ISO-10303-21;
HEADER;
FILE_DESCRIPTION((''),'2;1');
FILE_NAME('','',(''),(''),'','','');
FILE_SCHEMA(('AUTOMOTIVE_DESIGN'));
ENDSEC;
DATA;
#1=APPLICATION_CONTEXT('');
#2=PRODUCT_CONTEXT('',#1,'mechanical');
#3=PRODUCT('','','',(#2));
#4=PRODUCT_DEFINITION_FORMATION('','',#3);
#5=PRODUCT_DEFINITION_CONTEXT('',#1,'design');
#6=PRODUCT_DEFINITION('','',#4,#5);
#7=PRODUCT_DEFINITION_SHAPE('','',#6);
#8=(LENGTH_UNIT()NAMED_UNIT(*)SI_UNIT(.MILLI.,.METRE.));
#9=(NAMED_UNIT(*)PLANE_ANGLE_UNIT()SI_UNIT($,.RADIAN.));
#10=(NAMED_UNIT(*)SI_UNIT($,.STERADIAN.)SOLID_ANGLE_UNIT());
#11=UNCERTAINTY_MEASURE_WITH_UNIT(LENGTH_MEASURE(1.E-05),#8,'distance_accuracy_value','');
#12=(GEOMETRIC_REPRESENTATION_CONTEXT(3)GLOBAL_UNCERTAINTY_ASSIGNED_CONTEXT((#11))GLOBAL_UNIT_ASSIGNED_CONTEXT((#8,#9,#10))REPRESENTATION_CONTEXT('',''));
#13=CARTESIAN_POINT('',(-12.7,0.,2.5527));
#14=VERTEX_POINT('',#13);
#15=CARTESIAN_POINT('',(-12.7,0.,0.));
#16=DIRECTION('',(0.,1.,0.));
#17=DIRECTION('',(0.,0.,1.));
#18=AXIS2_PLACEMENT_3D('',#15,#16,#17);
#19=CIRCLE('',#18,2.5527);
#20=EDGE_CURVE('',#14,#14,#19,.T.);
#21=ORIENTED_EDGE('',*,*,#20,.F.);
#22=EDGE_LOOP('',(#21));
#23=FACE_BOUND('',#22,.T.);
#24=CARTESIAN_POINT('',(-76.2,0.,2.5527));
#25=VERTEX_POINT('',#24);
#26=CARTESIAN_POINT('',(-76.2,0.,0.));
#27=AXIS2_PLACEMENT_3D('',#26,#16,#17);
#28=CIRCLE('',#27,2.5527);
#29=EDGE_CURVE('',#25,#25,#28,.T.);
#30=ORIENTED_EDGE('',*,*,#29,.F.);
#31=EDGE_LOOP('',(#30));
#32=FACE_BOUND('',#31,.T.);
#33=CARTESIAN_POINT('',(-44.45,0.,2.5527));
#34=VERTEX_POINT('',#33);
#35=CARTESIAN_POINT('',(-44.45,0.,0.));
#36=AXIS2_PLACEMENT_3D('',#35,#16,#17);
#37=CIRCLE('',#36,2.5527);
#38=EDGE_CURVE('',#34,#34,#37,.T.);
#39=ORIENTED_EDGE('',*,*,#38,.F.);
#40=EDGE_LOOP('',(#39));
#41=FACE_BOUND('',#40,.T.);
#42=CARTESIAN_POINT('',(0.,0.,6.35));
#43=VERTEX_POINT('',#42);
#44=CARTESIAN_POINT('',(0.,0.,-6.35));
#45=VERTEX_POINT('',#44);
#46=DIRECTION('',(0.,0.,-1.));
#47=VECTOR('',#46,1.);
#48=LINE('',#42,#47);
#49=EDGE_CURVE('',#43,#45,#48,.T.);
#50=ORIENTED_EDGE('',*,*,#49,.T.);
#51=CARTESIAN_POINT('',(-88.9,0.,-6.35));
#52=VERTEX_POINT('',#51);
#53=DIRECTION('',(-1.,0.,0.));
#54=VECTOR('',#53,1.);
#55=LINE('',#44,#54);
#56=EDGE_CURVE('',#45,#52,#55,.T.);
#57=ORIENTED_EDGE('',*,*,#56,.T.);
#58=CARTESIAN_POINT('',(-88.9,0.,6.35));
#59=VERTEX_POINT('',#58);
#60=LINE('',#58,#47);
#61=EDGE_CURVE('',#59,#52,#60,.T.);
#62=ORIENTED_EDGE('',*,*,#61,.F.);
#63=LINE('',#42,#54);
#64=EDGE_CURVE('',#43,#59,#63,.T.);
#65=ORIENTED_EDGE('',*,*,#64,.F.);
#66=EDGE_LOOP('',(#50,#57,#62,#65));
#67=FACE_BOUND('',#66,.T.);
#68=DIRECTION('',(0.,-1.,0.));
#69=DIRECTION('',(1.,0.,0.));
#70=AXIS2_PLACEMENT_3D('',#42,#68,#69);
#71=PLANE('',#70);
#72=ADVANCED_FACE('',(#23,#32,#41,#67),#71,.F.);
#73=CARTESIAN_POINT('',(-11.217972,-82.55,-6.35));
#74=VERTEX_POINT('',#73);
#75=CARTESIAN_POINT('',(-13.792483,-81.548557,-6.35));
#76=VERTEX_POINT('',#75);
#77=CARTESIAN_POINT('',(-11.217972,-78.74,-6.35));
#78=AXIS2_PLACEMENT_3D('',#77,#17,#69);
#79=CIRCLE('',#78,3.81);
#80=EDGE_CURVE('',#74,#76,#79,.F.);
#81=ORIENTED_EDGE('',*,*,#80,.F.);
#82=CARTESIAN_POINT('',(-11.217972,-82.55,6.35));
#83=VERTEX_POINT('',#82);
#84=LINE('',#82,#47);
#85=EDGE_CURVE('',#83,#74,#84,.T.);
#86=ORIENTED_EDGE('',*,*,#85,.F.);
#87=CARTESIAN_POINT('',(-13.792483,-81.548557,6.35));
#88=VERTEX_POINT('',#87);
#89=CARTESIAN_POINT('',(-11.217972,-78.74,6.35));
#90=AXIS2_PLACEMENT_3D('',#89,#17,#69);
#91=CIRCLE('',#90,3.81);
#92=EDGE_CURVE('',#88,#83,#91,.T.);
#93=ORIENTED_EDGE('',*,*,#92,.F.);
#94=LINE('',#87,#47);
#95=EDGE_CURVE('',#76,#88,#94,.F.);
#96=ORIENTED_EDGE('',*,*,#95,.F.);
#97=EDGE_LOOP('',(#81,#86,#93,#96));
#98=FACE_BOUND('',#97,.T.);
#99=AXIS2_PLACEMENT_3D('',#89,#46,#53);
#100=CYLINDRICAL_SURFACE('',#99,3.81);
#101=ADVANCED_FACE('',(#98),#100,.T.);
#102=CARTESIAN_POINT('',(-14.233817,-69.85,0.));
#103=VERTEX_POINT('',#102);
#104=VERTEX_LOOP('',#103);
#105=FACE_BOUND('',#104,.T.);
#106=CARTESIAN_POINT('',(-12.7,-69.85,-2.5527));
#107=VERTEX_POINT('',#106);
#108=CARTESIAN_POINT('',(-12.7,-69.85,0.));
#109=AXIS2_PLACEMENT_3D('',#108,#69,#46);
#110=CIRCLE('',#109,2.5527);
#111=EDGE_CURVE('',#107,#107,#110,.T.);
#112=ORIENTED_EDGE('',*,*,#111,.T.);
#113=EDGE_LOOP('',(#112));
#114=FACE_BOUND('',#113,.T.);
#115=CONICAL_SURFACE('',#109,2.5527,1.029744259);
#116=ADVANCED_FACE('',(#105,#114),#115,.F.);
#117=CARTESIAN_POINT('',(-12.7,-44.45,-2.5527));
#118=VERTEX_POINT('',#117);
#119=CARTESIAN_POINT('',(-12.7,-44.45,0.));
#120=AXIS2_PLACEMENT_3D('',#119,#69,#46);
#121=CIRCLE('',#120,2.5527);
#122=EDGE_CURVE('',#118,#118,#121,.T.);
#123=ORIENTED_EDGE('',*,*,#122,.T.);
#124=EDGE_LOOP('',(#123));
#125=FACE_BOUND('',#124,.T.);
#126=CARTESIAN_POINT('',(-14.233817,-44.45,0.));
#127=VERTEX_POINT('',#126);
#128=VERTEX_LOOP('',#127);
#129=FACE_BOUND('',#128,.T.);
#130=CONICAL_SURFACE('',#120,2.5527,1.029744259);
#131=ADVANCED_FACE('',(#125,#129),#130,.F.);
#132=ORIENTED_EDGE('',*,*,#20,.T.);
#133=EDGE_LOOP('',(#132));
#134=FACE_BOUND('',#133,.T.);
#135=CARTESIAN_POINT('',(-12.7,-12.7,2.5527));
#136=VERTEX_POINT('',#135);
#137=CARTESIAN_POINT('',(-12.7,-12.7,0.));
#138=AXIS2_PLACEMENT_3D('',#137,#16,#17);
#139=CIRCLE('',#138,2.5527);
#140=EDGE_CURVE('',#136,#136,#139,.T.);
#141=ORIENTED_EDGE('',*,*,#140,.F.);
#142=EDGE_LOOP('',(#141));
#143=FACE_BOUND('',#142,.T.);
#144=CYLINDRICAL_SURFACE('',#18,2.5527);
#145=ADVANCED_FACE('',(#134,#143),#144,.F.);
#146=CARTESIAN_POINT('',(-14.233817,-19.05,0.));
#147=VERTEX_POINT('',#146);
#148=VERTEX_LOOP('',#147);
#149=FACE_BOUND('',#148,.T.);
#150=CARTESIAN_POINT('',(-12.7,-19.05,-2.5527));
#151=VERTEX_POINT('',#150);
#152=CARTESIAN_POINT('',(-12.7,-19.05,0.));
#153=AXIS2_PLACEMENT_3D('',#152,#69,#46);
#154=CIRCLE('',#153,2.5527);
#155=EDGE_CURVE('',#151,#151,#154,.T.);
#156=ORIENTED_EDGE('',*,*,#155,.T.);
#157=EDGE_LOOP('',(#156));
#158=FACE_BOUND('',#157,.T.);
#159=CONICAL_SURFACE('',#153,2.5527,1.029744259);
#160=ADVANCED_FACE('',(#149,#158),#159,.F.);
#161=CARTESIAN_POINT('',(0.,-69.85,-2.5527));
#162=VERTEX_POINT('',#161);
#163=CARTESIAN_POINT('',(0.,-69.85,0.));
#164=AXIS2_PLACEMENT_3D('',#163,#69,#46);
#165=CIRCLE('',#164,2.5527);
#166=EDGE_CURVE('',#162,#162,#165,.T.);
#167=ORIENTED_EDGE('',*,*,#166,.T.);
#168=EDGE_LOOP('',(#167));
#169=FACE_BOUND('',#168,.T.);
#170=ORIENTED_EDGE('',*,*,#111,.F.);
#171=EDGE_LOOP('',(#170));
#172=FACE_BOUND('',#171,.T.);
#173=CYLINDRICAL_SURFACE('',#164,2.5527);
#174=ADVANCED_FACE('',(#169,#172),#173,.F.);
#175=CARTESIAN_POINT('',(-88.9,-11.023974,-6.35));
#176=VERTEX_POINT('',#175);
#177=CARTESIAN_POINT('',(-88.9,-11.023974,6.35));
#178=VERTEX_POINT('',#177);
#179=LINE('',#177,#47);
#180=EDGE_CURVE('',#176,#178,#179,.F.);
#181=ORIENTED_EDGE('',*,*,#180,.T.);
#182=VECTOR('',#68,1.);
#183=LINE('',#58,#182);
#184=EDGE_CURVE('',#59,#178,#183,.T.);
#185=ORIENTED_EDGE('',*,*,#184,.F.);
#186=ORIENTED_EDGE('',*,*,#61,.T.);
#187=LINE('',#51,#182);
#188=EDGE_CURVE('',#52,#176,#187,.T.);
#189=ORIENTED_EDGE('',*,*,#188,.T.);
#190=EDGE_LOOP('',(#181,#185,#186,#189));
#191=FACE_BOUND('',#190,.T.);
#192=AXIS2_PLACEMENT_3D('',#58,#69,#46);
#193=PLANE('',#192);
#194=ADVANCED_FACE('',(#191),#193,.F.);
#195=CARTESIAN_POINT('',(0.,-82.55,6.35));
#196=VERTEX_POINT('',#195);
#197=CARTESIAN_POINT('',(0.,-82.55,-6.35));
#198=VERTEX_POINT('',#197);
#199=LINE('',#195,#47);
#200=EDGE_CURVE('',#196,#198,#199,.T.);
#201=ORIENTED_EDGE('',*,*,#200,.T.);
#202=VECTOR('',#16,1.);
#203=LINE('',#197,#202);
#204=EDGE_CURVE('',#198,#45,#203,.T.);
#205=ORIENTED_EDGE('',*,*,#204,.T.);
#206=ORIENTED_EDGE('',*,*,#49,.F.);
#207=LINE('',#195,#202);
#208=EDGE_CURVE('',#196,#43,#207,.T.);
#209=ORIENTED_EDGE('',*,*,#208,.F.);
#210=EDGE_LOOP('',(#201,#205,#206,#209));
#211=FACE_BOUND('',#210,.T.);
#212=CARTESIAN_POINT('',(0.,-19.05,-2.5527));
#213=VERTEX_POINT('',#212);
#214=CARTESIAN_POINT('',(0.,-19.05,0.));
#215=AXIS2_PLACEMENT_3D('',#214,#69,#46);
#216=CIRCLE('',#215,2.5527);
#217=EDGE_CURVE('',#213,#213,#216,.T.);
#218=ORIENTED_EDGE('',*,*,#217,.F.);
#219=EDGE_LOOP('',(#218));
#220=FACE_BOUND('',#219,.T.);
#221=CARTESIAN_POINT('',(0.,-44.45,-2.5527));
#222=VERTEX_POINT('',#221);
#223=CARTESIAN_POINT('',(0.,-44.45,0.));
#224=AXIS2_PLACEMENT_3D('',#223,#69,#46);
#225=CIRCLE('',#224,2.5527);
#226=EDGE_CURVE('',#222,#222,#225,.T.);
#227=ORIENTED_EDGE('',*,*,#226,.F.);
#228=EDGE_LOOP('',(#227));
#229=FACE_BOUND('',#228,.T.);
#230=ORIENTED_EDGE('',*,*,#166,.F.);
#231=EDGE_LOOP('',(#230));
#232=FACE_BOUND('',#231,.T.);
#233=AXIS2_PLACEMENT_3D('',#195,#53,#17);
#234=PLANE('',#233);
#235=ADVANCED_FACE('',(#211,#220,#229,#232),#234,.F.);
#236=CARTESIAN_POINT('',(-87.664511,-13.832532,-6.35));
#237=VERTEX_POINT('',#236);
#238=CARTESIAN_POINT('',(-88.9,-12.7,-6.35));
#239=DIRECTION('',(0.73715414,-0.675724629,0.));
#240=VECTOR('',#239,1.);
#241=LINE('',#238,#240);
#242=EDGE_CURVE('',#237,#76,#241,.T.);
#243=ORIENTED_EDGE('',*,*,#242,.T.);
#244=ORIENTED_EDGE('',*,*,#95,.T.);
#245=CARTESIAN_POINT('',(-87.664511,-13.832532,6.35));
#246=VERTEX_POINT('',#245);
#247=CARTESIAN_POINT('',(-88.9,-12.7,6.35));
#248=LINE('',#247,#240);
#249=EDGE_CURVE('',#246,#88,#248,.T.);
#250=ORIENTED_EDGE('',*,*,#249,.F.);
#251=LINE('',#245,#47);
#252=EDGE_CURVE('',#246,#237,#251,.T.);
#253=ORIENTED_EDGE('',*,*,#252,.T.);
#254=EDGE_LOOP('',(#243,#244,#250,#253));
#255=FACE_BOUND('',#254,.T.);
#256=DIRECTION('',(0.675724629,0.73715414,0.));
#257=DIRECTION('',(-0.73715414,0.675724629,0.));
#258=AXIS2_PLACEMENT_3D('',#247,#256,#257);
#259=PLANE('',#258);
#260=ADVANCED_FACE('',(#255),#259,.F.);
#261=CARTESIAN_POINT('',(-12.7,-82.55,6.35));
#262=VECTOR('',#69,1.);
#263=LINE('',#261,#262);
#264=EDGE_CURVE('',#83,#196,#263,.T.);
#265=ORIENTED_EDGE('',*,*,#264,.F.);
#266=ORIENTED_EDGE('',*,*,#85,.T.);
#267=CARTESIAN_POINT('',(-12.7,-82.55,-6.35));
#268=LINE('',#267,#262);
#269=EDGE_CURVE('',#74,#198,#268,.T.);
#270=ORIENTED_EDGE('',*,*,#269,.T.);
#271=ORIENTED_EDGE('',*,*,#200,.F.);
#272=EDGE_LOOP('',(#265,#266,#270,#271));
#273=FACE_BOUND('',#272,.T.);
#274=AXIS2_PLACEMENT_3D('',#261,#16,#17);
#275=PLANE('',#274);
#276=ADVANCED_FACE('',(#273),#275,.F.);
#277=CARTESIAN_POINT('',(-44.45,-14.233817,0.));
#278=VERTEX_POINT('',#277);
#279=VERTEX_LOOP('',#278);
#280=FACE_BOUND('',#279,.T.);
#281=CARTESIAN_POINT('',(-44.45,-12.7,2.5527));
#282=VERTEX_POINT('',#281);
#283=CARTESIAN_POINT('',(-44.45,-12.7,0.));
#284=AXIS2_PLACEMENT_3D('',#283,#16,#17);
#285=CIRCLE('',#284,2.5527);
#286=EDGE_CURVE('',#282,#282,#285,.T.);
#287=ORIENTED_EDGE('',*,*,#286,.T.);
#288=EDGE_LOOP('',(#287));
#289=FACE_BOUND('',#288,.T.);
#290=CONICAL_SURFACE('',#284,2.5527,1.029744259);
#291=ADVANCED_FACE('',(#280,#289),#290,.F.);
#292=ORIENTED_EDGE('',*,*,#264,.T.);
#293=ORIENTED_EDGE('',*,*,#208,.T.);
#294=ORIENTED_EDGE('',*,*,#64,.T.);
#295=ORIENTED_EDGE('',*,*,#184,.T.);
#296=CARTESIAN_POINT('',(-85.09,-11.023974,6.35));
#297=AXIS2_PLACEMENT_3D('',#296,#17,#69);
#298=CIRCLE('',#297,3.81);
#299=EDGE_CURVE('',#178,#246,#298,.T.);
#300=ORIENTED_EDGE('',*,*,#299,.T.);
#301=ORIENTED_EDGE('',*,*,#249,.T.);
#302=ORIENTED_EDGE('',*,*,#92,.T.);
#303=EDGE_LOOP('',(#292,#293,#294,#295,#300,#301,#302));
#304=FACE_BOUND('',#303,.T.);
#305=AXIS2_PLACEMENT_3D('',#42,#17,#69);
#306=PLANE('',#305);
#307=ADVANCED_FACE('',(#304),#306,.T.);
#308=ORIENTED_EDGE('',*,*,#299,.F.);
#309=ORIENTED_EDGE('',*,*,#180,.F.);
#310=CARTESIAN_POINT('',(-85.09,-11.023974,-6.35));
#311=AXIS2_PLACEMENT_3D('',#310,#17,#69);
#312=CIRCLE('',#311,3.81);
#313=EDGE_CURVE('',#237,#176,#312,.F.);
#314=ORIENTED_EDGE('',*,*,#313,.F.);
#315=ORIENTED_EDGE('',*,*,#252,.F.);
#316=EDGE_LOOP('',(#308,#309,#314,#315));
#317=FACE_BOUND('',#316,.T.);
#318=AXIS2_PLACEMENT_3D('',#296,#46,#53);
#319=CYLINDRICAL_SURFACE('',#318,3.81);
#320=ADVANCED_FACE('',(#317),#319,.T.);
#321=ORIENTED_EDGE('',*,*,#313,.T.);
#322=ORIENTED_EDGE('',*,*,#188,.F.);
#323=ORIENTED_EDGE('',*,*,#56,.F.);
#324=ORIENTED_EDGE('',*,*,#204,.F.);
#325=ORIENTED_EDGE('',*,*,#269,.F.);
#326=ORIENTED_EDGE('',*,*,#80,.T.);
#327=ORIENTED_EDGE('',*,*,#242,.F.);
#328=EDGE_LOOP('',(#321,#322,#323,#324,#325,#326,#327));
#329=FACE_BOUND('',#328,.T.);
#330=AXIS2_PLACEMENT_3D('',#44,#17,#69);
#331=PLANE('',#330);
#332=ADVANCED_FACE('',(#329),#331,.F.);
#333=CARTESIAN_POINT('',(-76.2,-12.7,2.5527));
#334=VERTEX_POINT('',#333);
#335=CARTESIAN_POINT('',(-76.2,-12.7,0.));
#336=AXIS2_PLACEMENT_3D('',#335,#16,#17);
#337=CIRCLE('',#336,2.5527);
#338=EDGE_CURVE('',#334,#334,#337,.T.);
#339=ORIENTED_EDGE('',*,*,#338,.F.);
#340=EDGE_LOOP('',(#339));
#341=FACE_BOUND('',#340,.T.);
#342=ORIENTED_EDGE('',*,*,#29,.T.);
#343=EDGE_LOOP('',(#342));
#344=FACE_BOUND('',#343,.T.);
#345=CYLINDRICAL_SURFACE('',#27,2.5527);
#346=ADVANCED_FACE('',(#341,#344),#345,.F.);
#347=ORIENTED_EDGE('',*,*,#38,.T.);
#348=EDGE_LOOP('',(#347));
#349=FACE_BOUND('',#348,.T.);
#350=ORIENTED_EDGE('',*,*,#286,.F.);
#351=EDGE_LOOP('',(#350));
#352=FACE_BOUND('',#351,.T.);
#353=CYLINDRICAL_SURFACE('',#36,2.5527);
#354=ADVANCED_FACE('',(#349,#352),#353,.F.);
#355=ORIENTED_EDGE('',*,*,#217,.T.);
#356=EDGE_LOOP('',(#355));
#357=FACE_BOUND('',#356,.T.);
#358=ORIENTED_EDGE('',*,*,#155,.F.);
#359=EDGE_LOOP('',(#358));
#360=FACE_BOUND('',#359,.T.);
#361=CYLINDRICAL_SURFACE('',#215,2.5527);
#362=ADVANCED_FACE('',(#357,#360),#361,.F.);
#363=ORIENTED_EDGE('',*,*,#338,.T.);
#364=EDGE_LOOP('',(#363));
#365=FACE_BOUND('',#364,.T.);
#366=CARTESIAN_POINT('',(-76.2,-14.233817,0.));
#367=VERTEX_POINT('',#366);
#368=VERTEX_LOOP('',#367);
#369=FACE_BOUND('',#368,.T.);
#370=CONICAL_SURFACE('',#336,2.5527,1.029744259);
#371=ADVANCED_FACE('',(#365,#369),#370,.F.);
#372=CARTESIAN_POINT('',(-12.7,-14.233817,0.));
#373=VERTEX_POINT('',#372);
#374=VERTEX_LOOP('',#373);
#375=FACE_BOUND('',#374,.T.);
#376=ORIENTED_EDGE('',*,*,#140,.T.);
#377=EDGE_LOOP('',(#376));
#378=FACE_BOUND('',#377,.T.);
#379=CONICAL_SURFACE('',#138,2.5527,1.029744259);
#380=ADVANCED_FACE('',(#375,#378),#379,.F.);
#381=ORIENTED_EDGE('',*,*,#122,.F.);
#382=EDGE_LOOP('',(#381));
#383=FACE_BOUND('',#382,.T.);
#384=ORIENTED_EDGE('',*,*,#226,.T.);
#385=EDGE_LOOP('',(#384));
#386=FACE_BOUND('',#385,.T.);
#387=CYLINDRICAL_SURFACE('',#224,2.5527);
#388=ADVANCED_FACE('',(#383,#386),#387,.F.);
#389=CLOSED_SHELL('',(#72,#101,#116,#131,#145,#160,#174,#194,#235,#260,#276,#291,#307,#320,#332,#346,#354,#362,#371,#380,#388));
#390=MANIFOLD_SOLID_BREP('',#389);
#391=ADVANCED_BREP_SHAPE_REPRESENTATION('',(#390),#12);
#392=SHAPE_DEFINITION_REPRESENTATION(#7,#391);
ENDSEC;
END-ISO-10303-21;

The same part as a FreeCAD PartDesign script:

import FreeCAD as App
import Part
import Sketcher
from FreeCAD import Vector
Q = App.Units.Quantity


def edges_at(feature, points):
    """Names of the edges that pass closest to the given points."""
    edges = feature.Shape.Edges
    near = lambda p: min(range(len(edges)), key=lambda i: edges[i].distToShape(Part.Vertex(*p))[0])
    return sorted({f"Edge{near(p) + 1}" for p in points})


def add_polygon(sketch, points):
    """Adds a closed chain of lines whose ends are joined by coincident constraints."""
    first, n = sketch.GeometryCount, len(points)
    for a, b in zip(points, points[1:] + points[:1]):
        sketch.addGeometry(Part.LineSegment(App.Vector(*a, 0), App.Vector(*b, 0)), False)
    for i in range(n):
        sketch.addConstraint(Sketcher.Constraint("Coincident", first + i, 2, first + (i + 1) % n, 1))

doc = App.newDocument("Part")
body = doc.addObject("PartDesign::Body", "Body")

# Sketch on XY plane
sketch1 = doc.addObject("Sketcher::SketchObject", "Sketch")
body.addObject(sketch1)
sketch1.AttachmentSupport = (doc.XY_Plane, [""])
sketch1.MapMode = "FlatFace"
add_polygon(sketch1, [(0, 0), (-89, 0), (-89, -13), (-13, -83), (0, -83)])  # lines 0-4
sketch1.addConstraint([
    Sketcher.Constraint("Horizontal", 0),
    Sketcher.Constraint("Vertical", 1),
    Sketcher.Constraint("Horizontal", 3),
    Sketcher.Constraint("Vertical", 4),
    Sketcher.Constraint("Coincident", 4, 2, -1, 1),
    Sketcher.Constraint("Equal", 3, 1),
    Sketcher.Constraint("DistanceX", 0, 2, 0, 1, Q("3.5 in")),
    Sketcher.Constraint("DistanceX", 3, 1, 3, 2, Q("0.5 in")),
    Sketcher.Constraint("DistanceY", 4, 1, 4, 2, Q("3.25 in")),
])
pad1 = doc.addObject("PartDesign::Pad", "Pad")
body.addObject(pad1)
pad1.Profile = sketch1
pad1.Length = Q("0.5 in")
pad1.Midplane = True

# Sketch on YZ plane
sketch2 = doc.addObject("Sketcher::SketchObject", "Sketch001")
body.addObject(sketch2)
sketch2.AttachmentSupport = (doc.YZ_Plane, [""])
sketch2.MapMode = "FlatFace"
sketch2.AttachmentOffset = App.Placement(Vector(0, 0, -3 * 25.4), App.Rotation())
add_polygon(sketch2, [(-14.2, 0), (0, 0), (0, 2.6), (-12.7, 2.6)])  # lines 0-3
sketch2.addConstraint([
    Sketcher.Constraint("Horizontal", 0),
    Sketcher.Constraint("Vertical", 1),
    Sketcher.Constraint("Horizontal", 2),
    Sketcher.Constraint("Coincident", 0, 2, -1, 1),
    Sketcher.Constraint("DistanceX", 2, 2, 2, 1, Q("0.5 in")),
    Sketcher.Constraint("Angle", 3, Q("-121 deg")),
    Sketcher.Constraint("DistanceY", 1, 1, 1, 2, Q("0.1005 in")),
])
groove = doc.addObject("PartDesign::Groove", "Groove")
body.addObject(groove)
groove.Profile = sketch2
groove.ReferenceAxis = (sketch2, ["H_Axis"])
groove.Angle = 360
doc.recompute()

linearpattern = doc.addObject("PartDesign::LinearPattern", "LinearPattern")
body.addObject(linearpattern)
linearpattern.Originals = [groove]
linearpattern.Direction = (doc.X_Axis, [""])
linearpattern.Mode = "offset"
linearpattern.Offset = Q("1.25 in")
linearpattern.Occurrences = 3
body.Tip = linearpattern

# Sketch on XZ plane
sketch3 = doc.addObject("Sketcher::SketchObject", "Sketch002")
body.addObject(sketch3)
sketch3.AttachmentSupport = (doc.XZ_Plane, [""])
sketch3.MapMode = "FlatFace"
sketch3.AttachmentOffset = App.Placement(Vector(0, 0, 2.75 * 25.4), App.Rotation())
add_polygon(sketch3, [(-14.2, 0), (0, 0), (0, -2.6), (-12.7, -2.6)])  # lines 0-3
sketch3.addConstraint([
    Sketcher.Constraint("Horizontal", 0),
    Sketcher.Constraint("Vertical", 1),
    Sketcher.Constraint("Horizontal", 2),
    Sketcher.Constraint("Coincident", 0, 2, -1, 1),
    Sketcher.Constraint("DistanceX", 2, 2, 2, 1, Q("0.5 in")),
    Sketcher.Constraint("Angle", 3, Q("121 deg")),
    Sketcher.Constraint("DistanceY", 1, 2, 1, 1, Q("0.1005 in")),
])
groove2 = doc.addObject("PartDesign::Groove", "Groove001")
body.addObject(groove2)
groove2.Profile = sketch3
groove2.ReferenceAxis = (sketch3, ["H_Axis"])
groove2.Angle = 360
doc.recompute()

linearpattern2 = doc.addObject("PartDesign::LinearPattern", "LinearPattern001")
body.addObject(linearpattern2)
linearpattern2.Originals = [groove2]
linearpattern2.Direction = (doc.Y_Axis, [""])
linearpattern2.Mode = "offset"
linearpattern2.Offset = Q("1 in")
linearpattern2.Occurrences = 3
body.Tip = linearpattern2
doc.recompute()

fillet = doc.addObject("PartDesign::Fillet", "Fillet")
body.addObject(fillet)
fillet.Base = (linearpattern2, edges_at(linearpattern2, [(-12.7, -82.55, 0), (-88.9, -12.7, 0)]))
fillet.Radius = Q("0.15 in")

doc.recompute()
